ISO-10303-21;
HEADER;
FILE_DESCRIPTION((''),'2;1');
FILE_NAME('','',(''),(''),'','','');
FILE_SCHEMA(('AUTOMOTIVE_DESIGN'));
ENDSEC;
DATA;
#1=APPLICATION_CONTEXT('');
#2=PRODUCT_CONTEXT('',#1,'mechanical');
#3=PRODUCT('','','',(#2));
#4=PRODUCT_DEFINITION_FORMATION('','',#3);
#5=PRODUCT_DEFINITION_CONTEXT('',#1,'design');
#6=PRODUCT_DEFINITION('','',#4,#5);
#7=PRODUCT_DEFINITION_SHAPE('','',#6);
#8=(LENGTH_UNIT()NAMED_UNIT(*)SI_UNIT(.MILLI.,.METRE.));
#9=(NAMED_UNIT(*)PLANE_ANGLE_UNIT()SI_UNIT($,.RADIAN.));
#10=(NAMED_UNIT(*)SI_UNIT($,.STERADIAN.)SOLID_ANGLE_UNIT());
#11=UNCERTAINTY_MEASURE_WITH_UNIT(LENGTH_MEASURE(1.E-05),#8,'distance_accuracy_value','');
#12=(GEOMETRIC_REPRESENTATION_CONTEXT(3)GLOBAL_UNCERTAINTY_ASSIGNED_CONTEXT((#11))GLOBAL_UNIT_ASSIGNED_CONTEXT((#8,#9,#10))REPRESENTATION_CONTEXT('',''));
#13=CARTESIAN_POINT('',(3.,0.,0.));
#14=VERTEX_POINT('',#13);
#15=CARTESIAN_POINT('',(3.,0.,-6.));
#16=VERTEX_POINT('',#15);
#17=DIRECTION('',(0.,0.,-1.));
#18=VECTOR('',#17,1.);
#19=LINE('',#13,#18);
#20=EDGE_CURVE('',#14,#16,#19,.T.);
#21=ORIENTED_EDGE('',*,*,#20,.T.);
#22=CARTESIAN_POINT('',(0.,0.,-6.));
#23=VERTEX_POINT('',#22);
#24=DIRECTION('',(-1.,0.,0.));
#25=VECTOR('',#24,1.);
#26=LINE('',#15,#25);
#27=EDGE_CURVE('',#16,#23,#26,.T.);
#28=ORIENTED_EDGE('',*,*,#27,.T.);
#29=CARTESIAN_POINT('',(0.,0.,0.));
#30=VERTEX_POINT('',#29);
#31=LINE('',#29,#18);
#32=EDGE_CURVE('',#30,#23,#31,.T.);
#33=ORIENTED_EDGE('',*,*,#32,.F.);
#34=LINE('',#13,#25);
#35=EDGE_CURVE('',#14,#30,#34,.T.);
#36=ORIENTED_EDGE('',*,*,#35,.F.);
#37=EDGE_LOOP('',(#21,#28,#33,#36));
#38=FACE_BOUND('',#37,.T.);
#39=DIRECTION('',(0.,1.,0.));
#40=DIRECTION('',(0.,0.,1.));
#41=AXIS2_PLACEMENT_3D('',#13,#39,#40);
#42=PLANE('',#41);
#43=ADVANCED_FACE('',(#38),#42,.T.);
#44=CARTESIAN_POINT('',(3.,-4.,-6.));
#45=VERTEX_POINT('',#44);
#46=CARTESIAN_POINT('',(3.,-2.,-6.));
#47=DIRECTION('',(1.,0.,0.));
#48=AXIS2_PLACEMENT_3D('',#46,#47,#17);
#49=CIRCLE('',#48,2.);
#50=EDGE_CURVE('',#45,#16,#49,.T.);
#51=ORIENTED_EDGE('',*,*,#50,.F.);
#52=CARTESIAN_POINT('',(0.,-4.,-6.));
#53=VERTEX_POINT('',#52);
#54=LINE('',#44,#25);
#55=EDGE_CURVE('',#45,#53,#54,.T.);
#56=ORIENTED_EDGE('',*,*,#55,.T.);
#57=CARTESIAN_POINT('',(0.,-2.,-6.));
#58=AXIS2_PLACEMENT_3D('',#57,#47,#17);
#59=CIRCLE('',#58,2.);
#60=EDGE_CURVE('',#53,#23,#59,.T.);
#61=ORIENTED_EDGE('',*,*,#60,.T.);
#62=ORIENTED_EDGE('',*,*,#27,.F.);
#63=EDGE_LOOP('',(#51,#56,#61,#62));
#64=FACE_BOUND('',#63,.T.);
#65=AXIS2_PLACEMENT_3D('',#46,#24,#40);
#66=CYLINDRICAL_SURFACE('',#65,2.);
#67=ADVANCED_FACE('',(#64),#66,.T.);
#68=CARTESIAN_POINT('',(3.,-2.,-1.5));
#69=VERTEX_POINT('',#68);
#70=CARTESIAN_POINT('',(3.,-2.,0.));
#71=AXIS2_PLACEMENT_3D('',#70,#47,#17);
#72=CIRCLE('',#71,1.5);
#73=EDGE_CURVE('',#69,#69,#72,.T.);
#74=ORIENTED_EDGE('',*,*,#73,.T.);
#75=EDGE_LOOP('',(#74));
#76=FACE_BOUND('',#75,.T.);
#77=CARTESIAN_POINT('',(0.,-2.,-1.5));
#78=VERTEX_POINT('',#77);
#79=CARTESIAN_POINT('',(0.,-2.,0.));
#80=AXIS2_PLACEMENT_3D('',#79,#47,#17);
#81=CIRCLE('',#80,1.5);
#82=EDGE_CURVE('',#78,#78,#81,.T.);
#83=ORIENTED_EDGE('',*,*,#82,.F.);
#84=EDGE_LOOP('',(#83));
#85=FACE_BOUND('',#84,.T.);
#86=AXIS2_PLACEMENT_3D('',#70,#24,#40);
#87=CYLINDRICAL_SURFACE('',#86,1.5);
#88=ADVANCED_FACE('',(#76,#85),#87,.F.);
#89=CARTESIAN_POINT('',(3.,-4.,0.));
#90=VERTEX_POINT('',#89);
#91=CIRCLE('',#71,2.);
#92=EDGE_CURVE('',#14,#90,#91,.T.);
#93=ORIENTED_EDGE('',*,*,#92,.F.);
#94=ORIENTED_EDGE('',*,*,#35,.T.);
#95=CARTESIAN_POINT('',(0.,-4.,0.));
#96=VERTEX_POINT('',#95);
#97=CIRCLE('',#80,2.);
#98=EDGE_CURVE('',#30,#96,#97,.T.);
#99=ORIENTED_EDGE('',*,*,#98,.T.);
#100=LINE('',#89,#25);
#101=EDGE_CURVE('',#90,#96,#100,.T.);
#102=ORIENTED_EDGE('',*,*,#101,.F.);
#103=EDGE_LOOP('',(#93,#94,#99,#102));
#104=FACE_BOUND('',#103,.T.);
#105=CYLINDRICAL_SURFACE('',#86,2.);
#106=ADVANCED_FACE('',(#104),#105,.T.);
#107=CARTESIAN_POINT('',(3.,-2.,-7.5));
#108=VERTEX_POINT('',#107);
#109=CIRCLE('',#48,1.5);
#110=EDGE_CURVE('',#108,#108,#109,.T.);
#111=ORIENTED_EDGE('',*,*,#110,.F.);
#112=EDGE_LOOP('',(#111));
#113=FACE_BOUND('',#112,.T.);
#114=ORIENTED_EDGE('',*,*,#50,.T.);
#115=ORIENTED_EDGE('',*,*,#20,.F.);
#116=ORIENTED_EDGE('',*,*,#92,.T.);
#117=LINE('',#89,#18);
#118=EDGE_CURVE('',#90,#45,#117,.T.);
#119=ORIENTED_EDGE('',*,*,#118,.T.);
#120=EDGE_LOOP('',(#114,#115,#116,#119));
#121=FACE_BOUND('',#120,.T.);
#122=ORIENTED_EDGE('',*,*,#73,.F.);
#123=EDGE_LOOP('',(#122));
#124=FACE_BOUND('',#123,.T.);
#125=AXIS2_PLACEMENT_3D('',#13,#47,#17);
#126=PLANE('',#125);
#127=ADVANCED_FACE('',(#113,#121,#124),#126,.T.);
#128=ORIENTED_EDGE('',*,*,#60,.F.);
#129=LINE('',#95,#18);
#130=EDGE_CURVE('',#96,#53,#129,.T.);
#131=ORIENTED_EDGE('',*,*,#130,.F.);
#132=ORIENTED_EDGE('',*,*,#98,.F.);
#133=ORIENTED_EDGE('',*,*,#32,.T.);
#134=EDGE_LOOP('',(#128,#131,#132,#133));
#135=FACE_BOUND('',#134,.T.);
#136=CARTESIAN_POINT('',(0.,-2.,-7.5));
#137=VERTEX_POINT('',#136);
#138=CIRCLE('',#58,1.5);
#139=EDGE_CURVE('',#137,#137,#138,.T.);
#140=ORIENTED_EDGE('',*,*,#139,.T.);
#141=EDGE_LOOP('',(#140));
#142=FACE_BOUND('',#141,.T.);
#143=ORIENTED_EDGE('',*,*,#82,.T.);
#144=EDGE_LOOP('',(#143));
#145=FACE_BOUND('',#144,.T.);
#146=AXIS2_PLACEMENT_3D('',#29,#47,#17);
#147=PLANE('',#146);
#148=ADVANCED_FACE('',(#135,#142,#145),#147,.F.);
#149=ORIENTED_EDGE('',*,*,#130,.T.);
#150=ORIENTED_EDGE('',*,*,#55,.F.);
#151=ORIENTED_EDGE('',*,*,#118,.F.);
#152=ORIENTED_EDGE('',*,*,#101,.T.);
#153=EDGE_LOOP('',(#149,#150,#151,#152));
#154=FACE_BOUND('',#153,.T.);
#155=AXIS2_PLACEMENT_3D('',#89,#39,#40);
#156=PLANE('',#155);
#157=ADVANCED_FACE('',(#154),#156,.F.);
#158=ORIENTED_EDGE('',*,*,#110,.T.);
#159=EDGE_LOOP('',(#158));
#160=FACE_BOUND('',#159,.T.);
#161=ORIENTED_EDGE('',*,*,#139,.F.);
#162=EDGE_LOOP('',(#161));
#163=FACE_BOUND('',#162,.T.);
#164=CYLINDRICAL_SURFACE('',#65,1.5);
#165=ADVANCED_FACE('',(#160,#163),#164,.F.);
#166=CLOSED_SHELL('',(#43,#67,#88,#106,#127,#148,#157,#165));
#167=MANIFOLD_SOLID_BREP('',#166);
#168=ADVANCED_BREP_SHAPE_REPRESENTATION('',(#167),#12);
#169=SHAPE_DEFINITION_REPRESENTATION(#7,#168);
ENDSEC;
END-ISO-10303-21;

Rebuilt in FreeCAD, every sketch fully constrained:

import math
import FreeCAD as App
import Part
import Sketcher

doc = App.newDocument("Part")
body = doc.addObject("PartDesign::Body", "Body")

# Sketch on YZ plane
sketch1 = body.newObject("Sketcher::SketchObject", "Sketch")
sketch1.AttachmentSupport = (doc.getObject("YZ_Plane"), [""])
sketch1.MapMode = "FlatFace"
sketch1.addGeometry([
    Part.ArcOfCircle(Part.Circle(App.Vector(-2, -6, 0), App.Vector(0, 0, 1), 2), math.radians(-180), math.radians(-90)),  # 0
    Part.ArcOfCircle(Part.Circle(App.Vector(-2, -6, 0), App.Vector(0, 0, 1), 2), math.radians(-90), math.radians(0)),  # 1
    Part.LineSegment(App.Vector(0, -6, 0), App.Vector(0, 0, 0)),  # 2
    Part.ArcOfCircle(Part.Circle(App.Vector(-2, 0, 0), App.Vector(0, 0, 1), 2), math.radians(0), math.radians(90)),  # 3
    Part.ArcOfCircle(Part.Circle(App.Vector(-2, 0, 0), App.Vector(0, 0, 1), 2), math.radians(90), math.radians(180)),  # 4
    Part.LineSegment(App.Vector(-4, 0, 0), App.Vector(-4, -6, 0)),  # 5
    Part.Circle(App.Vector(-2, -6, 0), App.Vector(0, 0, 1), 1.5),  # 6
    Part.Circle(App.Vector(-2, 0, 0), App.Vector(0, 0, 1), 1.5),  # 7
], False)
sketch1.addConstraint([
    Sketcher.Constraint("Tangent", 0, 2, 1, 1),
    Sketcher.Constraint("Tangent", 1, 2, 2, 1),
    Sketcher.Constraint("Tangent", 2, 2, 3, 1),
    Sketcher.Constraint("Tangent", 3, 2, 4, 1),
    Sketcher.Constraint("Tangent", 4, 2, 5, 1),
    Sketcher.Constraint("Tangent", 5, 2, 0, 1),
    Sketcher.Constraint("Vertical", 2),
    Sketcher.Constraint("Vertical", 5),
    Sketcher.Constraint("Coincident", 2, 2, -1, 1),
    Sketcher.Constraint("Coincident", 6, 3, 0, 3),
    Sketcher.Constraint("Coincident", 7, 3, 3, 3),
    Sketcher.Constraint("Equal", 0, 1),
    Sketcher.Constraint("Equal", 1, 3),
    Sketcher.Constraint("Equal", 6, 7),
    Sketcher.Constraint("Vertical", 7, 3, 0, 2),
    Sketcher.Constraint("Vertical", 0, 2, 3, 2),
    Sketcher.Constraint("Diameter", 6, 3.0),
    Sketcher.Constraint("Radius", 0, 2.0),
    Sketcher.Constraint("DistanceY", 2, 1, 2, 2, 6.0),
])
pad1 = body.newObject("PartDesign::Pad", "Pad")
pad1.Profile = sketch1
pad1.Length = 3

doc.recompute()
